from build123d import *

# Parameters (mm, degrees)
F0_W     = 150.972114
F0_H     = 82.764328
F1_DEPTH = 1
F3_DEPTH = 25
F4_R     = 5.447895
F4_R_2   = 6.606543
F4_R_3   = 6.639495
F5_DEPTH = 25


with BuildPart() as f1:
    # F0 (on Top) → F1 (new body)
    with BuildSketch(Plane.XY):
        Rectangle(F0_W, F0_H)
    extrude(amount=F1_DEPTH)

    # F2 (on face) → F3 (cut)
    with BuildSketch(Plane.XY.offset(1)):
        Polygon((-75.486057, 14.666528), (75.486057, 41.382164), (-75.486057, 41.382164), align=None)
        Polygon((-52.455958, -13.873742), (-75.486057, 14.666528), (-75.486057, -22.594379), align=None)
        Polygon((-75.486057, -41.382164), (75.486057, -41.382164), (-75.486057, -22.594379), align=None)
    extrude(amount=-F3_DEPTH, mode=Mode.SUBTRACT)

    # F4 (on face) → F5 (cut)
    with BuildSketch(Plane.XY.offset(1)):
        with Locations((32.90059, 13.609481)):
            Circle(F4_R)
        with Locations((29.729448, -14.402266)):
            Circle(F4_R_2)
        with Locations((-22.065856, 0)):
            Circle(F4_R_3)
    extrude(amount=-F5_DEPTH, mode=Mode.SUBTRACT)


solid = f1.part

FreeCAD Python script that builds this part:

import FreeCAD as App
import Part
import Sketcher


def add_polygon(sketch, points):
    """Adds a closed chain of lines whose ends are joined by coincident constraints."""
    first, n = sketch.GeometryCount, len(points)
    for a, b in zip(points, points[1:] + points[:1]):
        sketch.addGeometry(Part.LineSegment(App.Vector(*a, 0), App.Vector(*b, 0)), False)
    for i in range(n):
        sketch.addConstraint(Sketcher.Constraint("Coincident", first + i, 2, first + (i + 1) % n, 1))

doc = App.newDocument("Part")
params = doc.addObject("Spreadsheet::Sheet", "Params")
for row, (alias, value) in enumerate([
    ("pad1_length", "1 mm"),
    ("pocket1_length", "25 mm"),
    ("pocket2_length", "25 mm"),
], start=1):
    params.set(f"A{row}", alias)
    params.set(f"B{row}", "=" + value)
    params.setAlias(f"B{row}", alias)

body = doc.addObject("PartDesign::Body", "Body")

# Sketch on XY plane
sketch1 = body.newObject("Sketcher::SketchObject", "Sketch")
sketch1.AttachmentSupport = (doc.getObject("XY_Plane"), [""])
sketch1.MapMode = "FlatFace"
add_polygon(sketch1, [(-75, 41), (-75, -41), (75, -41), (75, 41)])  # lines 0-3
sketch1.addConstraint(Sketcher.Constraint("Vertical", 0))
sketch1.addConstraint(Sketcher.Constraint("Horizontal", 1))
sketch1.addConstraint(Sketcher.Constraint("Vertical", 2))
sketch1.addConstraint(Sketcher.Constraint("Horizontal", 3))
sketch1.addConstraint(Sketcher.Constraint("Symmetric", 0, 2, 2, 2, -1, 1))
sketch1.addConstraint(Sketcher.Constraint("DistanceY", 0, 2, 0, 1, 82.764328))
sketch1.addConstraint(Sketcher.Constraint("DistanceX", 1, 1, 1, 2, 150.972114))
pad1 = body.newObject("PartDesign::Pad", "Pad")
pad1.Profile = sketch1
pad1.setExpression("Length", "Params.pad1_length")

# Sketch on XY plane
sketch2 = body.newObject("Sketcher::SketchObject", "Sketch001")
sketch2.AttachmentSupport = (doc.getObject("XY_Plane"), [""])
sketch2.MapMode = "FlatFace"
sketch2.AttachmentOffset = App.Placement(App.Vector(0, 0, 1), App.Rotation())
add_polygon(sketch2, [(-75, 15), (75, 41), (-75, 41)])  # lines 0-2
add_polygon(sketch2, [(-52, -14), (-75, 15), (-75, -23)])  # lines 3-5
add_polygon(sketch2, [(-75, -41), (75, -41), (-75, -23)])  # lines 6-8
sketch2.addConstraint(Sketcher.Constraint("Horizontal", 1))
sketch2.addConstraint(Sketcher.Constraint("Vertical", 2))
sketch2.addConstraint(Sketcher.Constraint("Vertical", 4))
sketch2.addConstraint(Sketcher.Constraint("Horizontal", 6))
sketch2.addConstraint(Sketcher.Constraint("Vertical", 8))
sketch2.addConstraint(Sketcher.Constraint("Coincident", 3, 2, 2, 2))
sketch2.addConstraint(Sketcher.Constraint("Coincident", 7, 2, 4, 2))
sketch2.addConstraint(Sketcher.Constraint("Symmetric", 1, 2, 6, 2, -1, 1))
sketch2.addConstraint(Sketcher.Constraint("Vertical", 0, 2, 6, 2))
sketch2.addConstraint(Sketcher.Constraint("Distance", 5, 24.6259))
sketch2.addConstraint(Sketcher.Constraint("DistanceX", 4, 2, 5, 2, 23.030099))
sketch2.addConstraint(Sketcher.Constraint("Distance", 0, 153.317659))
sketch2.addConstraint(Sketcher.Constraint("Distance", 3, 36.673321))
sketch2.addConstraint(Sketcher.Constraint("Distance", 7, 152.136649))
sketch2.addConstraint(Sketcher.Constraint("DistanceX", 1, 2, 1, 1, 150.972114))
pocket1 = body.newObject("PartDesign::Pocket", "Pocket")
pocket1.Profile = sketch2
pocket1.setExpression("Length", "Params.pocket1_length")

# Sketch on XY plane
sketch3 = body.newObject("Sketcher::SketchObject", "Sketch002")
sketch3.AttachmentSupport = (doc.getObject("XY_Plane"), [""])
sketch3.MapMode = "FlatFace"
sketch3.AttachmentOffset = App.Placement(App.Vector(0, 0, 1), App.Rotation())
sketch3.addGeometry(Part.Circle(App.Vector(33, 14, 0), App.Vector(0, 0, 1), 5), False)
sketch3.addGeometry(Part.Circle(App.Vector(30, -14, 0), App.Vector(0, 0, 1), 7), False)
sketch3.addGeometry(Part.Circle(App.Vector(-22, 0, 0), App.Vector(0, 0, 1), 7), False)
sketch3.addConstraint(Sketcher.Constraint("PointOnObject", 2, 3, -1))
sketch3.addConstraint(Sketcher.Constraint("Diameter", 0, 10.89579))
sketch3.addConstraint(Sketcher.Constraint("Diameter", 2, 13.27899))
sketch3.addConstraint(Sketcher.Constraint("Diameter", 1, 13.213086))
sketch3.addConstraint(Sketcher.Constraint("DistanceX", -1, 1, 0, 3, 32.90059))
sketch3.addConstraint(Sketcher.Constraint("DistanceY", -1, 1, 0, 3, 13.609481))
sketch3.addConstraint(Sketcher.Constraint("DistanceX", -1, 1, 1, 3, 29.729448))
sketch3.addConstraint(Sketcher.Constraint("DistanceY", 1, 3, -1, 1, 14.402266))
sketch3.addConstraint(Sketcher.Constraint("DistanceX", 2, 3, -1, 1, 22.065856))
pocket2 = body.newObject("PartDesign::Pocket", "Pocket001")
pocket2.Profile = sketch3
pocket2.setExpression("Length", "Params.pocket2_length")

doc.recompute()
